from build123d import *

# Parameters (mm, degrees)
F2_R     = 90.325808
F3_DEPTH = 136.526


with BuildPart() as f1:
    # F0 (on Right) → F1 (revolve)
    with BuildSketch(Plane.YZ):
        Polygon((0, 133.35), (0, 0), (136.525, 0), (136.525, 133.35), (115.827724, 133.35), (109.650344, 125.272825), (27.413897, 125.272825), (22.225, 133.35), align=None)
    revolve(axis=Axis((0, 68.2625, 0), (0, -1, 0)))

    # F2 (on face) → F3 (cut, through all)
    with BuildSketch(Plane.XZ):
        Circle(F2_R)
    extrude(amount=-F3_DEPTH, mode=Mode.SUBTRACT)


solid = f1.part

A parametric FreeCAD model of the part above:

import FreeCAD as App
import Part
import Sketcher
from FreeCAD import Vector
Q = App.Units.Quantity


def add_polygon(sketch, points):
    """Adds a closed chain of lines whose ends are joined by coincident constraints."""
    first, n = sketch.GeometryCount, len(points)
    for a, b in zip(points, points[1:] + points[:1]):
        sketch.addGeometry(Part.LineSegment(App.Vector(*a, 0), App.Vector(*b, 0)), False)
    for i in range(n):
        sketch.addConstraint(Sketcher.Constraint("Coincident", first + i, 2, first + (i + 1) % n, 1))

doc = App.newDocument("Part")
body = doc.addObject("PartDesign::Body", "Body")

sketch1 = body.newObject("Sketcher::SketchObject", "Sketch")
sketch1.AttachmentSupport = (doc.getObject("YZ_Plane"), [""])
sketch1.MapMode = "FlatFace"
add_polygon(sketch1, [(0, 133.35), (0, 0), (136.525, 0), (136.525, 133.35), (115.827724, 133.35), (109.650344, 125.272825), (27.413897, 125.272825), (22.225, 133.35)])
sketch1.addConstraint(Sketcher.Constraint("Vertical", 0))
sketch1.addConstraint(Sketcher.Constraint("Horizontal", 1))
sketch1.addConstraint(Sketcher.Constraint("Vertical", 2))
sketch1.addConstraint(Sketcher.Constraint("Horizontal", 3))
sketch1.addConstraint(Sketcher.Constraint("Horizontal", 5))
sketch1.addConstraint(Sketcher.Constraint("Horizontal", 7))
sketch1.addConstraint(Sketcher.Constraint("Coincident", 0, 2, -1, 1))
sketch1.addConstraint(Sketcher.Constraint("Horizontal", 3, 2, 6, 2))
sketch1.addConstraint(Sketcher.Constraint("DistanceY", 0, 2, 0, 1, Q("5.25 in")))
sketch1.addConstraint(Sketcher.Constraint("DistanceX", 6, 2, 2, 2, Q("4.5 in")))
sketch1.addConstraint(Sketcher.Constraint("DistanceX", 1, 1, 1, 2, Q("5.375 in")))
sketch1.addConstraint(Sketcher.Constraint("Distance", 6, Q("9.600282 mm")))
sketch1.addConstraint(Sketcher.Constraint("DistanceX", 3, 2, 3, 1, Q("20.697276 mm")))
sketch1.addConstraint(Sketcher.Constraint("DistanceX", 5, 2, 5, 1, Q("82.236447 mm")))
sketch1.addConstraint(Sketcher.Constraint("DistanceX", 4, 2, 3, 2, Q("6.17738 mm")))
revolution = body.newObject("PartDesign::Revolution", "Revolution")
revolution.Profile = sketch1
revolution.ReferenceAxis = (sketch1, ["H_Axis"])
revolution.Angle = 360

sketch2 = body.newObject("Sketcher::SketchObject", "Sketch001")
sketch2.AttachmentSupport = (doc.getObject("XZ_Plane"), [""])
sketch2.MapMode = "FlatFace"
sketch2.addGeometry(Part.Circle(Vector(0, 0, 0), Vector(0, 0, 1), 90.325808), False)
sketch2.addConstraint(Sketcher.Constraint("Coincident", 0, 3, -1, 1))
sketch2.addConstraint(Sketcher.Constraint("Diameter", 0, Q("180.651616 mm")))
pocket1 = body.newObject("PartDesign::Pocket", "Pocket")
pocket1.Profile = sketch2
pocket1.Type = "ThroughAll"

doc.recompute()
